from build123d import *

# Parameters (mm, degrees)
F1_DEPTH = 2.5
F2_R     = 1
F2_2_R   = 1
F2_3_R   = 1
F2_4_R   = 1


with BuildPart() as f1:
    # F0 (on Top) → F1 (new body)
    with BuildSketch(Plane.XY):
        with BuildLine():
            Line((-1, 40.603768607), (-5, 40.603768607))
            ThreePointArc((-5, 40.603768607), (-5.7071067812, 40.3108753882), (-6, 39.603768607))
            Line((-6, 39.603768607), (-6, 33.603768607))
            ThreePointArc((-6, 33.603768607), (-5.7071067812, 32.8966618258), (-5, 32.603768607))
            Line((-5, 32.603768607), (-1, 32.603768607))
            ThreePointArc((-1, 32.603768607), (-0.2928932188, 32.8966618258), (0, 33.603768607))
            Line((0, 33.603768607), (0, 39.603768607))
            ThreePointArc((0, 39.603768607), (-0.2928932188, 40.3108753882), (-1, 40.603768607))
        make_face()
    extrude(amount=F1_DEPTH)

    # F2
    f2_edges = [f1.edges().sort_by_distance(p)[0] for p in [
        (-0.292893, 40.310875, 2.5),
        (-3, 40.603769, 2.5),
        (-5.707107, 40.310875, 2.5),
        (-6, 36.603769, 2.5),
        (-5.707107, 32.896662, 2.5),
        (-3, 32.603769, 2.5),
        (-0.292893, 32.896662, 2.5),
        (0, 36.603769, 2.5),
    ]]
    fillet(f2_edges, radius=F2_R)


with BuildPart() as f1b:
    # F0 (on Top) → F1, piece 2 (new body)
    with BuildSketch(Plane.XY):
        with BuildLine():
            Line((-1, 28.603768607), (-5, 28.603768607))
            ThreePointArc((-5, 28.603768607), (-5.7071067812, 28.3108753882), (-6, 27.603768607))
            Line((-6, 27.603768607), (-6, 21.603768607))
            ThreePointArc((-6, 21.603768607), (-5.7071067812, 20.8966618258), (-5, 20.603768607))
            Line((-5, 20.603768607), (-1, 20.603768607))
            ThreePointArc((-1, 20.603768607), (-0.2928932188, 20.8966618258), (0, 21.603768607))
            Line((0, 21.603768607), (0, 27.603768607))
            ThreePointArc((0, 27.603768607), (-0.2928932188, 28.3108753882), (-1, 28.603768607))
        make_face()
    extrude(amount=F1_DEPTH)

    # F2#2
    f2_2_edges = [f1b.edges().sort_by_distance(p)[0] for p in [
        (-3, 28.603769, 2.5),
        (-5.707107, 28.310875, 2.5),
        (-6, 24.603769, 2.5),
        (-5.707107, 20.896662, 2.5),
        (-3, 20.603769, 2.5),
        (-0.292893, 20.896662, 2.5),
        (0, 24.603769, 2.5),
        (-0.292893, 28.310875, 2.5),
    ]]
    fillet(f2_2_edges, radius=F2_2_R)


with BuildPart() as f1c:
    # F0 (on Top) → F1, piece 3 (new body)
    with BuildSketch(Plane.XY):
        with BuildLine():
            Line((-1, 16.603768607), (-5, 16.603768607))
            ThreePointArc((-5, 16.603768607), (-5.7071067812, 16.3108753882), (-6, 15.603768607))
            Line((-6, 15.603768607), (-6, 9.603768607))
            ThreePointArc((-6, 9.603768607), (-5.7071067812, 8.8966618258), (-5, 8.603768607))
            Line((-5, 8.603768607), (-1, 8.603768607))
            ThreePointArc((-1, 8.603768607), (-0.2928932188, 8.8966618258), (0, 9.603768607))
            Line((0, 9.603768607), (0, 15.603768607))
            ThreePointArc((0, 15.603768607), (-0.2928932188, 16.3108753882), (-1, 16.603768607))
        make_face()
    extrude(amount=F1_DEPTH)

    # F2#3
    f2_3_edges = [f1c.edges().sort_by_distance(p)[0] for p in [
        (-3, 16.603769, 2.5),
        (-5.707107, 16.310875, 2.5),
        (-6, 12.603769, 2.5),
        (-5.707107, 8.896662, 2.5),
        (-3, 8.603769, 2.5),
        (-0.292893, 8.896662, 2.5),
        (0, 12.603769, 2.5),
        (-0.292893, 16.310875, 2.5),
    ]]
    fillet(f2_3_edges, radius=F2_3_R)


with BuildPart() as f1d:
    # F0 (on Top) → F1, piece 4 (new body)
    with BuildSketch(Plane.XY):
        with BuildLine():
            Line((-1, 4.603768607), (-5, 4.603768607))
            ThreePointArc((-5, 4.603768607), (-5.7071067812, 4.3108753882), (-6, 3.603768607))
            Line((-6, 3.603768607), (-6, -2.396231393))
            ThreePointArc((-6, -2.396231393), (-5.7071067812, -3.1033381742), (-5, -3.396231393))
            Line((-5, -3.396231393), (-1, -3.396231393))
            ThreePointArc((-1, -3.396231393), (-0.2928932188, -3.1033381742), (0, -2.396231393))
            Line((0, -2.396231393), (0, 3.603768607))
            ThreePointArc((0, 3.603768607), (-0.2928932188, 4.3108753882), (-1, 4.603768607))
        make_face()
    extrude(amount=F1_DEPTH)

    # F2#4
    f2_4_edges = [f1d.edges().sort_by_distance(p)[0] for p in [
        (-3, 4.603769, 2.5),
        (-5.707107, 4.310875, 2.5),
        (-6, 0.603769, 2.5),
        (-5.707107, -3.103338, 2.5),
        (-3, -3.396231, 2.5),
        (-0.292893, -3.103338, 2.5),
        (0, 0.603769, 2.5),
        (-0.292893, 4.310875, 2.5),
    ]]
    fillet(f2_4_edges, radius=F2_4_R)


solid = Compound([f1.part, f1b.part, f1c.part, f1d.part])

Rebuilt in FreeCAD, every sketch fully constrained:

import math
import FreeCAD as App
import Part
import Sketcher
from FreeCAD import Vector
Q = App.Units.Quantity


def edges_at(feature, points):
    """Names of the edges that pass closest to the given points."""
    edges = feature.Shape.Edges
    near = lambda p: min(range(len(edges)), key=lambda i: edges[i].distToShape(Part.Vertex(*p))[0])
    return sorted({f"Edge{near(p) + 1}" for p in points})

doc = App.newDocument("Part")
body = doc.addObject("PartDesign::Body", "Body")

# Sketch on XY plane
sketch1 = doc.addObject("Sketcher::SketchObject", "Sketch")
body.addObject(sketch1)
sketch1.AttachmentSupport = (doc.XY_Plane, [""])
sketch1.MapMode = "FlatFace"
sketch1.addGeometry(Part.LineSegment(Vector(-1, 40.6, 0), Vector(-5, 40.6, 0)), False)
sketch1.addGeometry(Part.ArcOfCircle(Part.Circle(Vector(-5, 39.6, 0), Vector(0, 0, 1), 1), math.radians(90), math.radians(180)), False)
sketch1.addGeometry(Part.LineSegment(Vector(-6, 39.6, 0), Vector(-6, 33.6, 0)), False)
sketch1.addGeometry(Part.ArcOfCircle(Part.Circle(Vector(-5, 33.6, 0), Vector(0, 0, 1), 1), math.radians(180), math.radians(270)), False)
sketch1.addGeometry(Part.LineSegment(Vector(-5, 32.6, 0), Vector(-1, 32.6, 0)), False)
sketch1.addGeometry(Part.ArcOfCircle(Part.Circle(Vector(-1, 33.6, 0), Vector(0, 0, 1), 1), math.radians(-90), math.radians(0)), False)
sketch1.addGeometry(Part.LineSegment(Vector(0, 33.6, 0), Vector(0, 39.6, 0)), False)
sketch1.addGeometry(Part.ArcOfCircle(Part.Circle(Vector(-1, 39.6, 0), Vector(0, 0, 1), 1), math.radians(0), math.radians(90)), False)
sketch1.addConstraint(Sketcher.Constraint("Tangent", 0, 2, 1, 1))
sketch1.addConstraint(Sketcher.Constraint("Tangent", 1, 2, 2, 1))
sketch1.addConstraint(Sketcher.Constraint("Tangent", 2, 2, 3, 1))
sketch1.addConstraint(Sketcher.Constraint("Tangent", 3, 2, 4, 1))
sketch1.addConstraint(Sketcher.Constraint("Tangent", 4, 2, 5, 1))
sketch1.addConstraint(Sketcher.Constraint("Tangent", 5, 2, 6, 1))
sketch1.addConstraint(Sketcher.Constraint("Tangent", 6, 2, 7, 1))
sketch1.addConstraint(Sketcher.Constraint("Tangent", 7, 2, 0, 1))
sketch1.addConstraint(Sketcher.Constraint("Horizontal", 0))
sketch1.addConstraint(Sketcher.Constraint("Vertical", 2))
sketch1.addConstraint(Sketcher.Constraint("Horizontal", 4))
sketch1.addConstraint(Sketcher.Constraint("Vertical", 6))
sketch1.addConstraint(Sketcher.Constraint("Equal", 1, 3))
sketch1.addConstraint(Sketcher.Constraint("Equal", 3, 5))
sketch1.addConstraint(Sketcher.Constraint("Equal", 5, 7))
sketch1.addConstraint(Sketcher.Constraint("PointOnObject", 5, 2, -2))
sketch1.addConstraint(Sketcher.Constraint("Radius", 1, Q("1 mm")))
sketch1.addConstraint(Sketcher.Constraint("DistanceX", 0, 2, 0, 1, Q("4 mm")))
sketch1.addConstraint(Sketcher.Constraint("DistanceY", 2, 2, 2, 1, Q("6 mm")))
sketch1.addConstraint(Sketcher.Constraint("DistanceY", -1, 1, 1, 3, Q("39.603769 mm")))
pad1 = doc.addObject("PartDesign::Pad", "Pad")
body.addObject(pad1)
pad1.Profile = sketch1
pad1.Length = 2.5
doc.recompute()

fillet = doc.addObject("PartDesign::Fillet", "Fillet")
body.addObject(fillet)
fillet.Base = (pad1, edges_at(pad1, [
    (-0.293, 40.311, 2.5),
    (-3, 40.604, 2.5),
    (-5.707, 40.311, 2.5),
    (-6, 36.604, 2.5),
    (-5.707, 32.897, 2.5),
    (-3, 32.604, 2.5),
    (-0.293, 32.897, 2.5),
    (0, 36.604, 2.5),
]))
fillet.Radius = 1
body2 = doc.addObject("PartDesign::Body", "Body001")

# Sketch on XY plane
sketch2 = doc.addObject("Sketcher::SketchObject", "Sketch001")
body2.addObject(sketch2)
sketch2.AttachmentSupport = (doc.getObject("XY_Plane001"), [""])
sketch2.MapMode = "FlatFace"
sketch2.addGeometry(Part.LineSegment(Vector(-1, 28.6, 0), Vector(-5, 28.6, 0)), False)
sketch2.addGeometry(Part.ArcOfCircle(Part.Circle(Vector(-5, 27.6, 0), Vector(0, 0, 1), 1), math.radians(90), math.radians(180)), False)
sketch2.addGeometry(Part.LineSegment(Vector(-6, 27.6, 0), Vector(-6, 21.6, 0)), False)
sketch2.addGeometry(Part.ArcOfCircle(Part.Circle(Vector(-5, 21.6, 0), Vector(0, 0, 1), 1), math.radians(180), math.radians(270)), False)
sketch2.addGeometry(Part.LineSegment(Vector(-5, 20.6, 0), Vector(-1, 20.6, 0)), False)
sketch2.addGeometry(Part.ArcOfCircle(Part.Circle(Vector(-1, 21.6, 0), Vector(0, 0, 1), 1), math.radians(-90), math.radians(0)), False)
sketch2.addGeometry(Part.LineSegment(Vector(0, 21.6, 0), Vector(0, 27.6, 0)), False)
sketch2.addGeometry(Part.ArcOfCircle(Part.Circle(Vector(-1, 27.6, 0), Vector(0, 0, 1), 1), math.radians(0), math.radians(90)), False)
sketch2.addConstraint(Sketcher.Constraint("Tangent", 0, 2, 1, 1))
sketch2.addConstraint(Sketcher.Constraint("Tangent", 1, 2, 2, 1))
sketch2.addConstraint(Sketcher.Constraint("Tangent", 2, 2, 3, 1))
sketch2.addConstraint(Sketcher.Constraint("Tangent", 3, 2, 4, 1))
sketch2.addConstraint(Sketcher.Constraint("Tangent", 4, 2, 5, 1))
sketch2.addConstraint(Sketcher.Constraint("Tangent", 5, 2, 6, 1))
sketch2.addConstraint(Sketcher.Constraint("Tangent", 6, 2, 7, 1))
sketch2.addConstraint(Sketcher.Constraint("Tangent", 7, 2, 0, 1))
sketch2.addConstraint(Sketcher.Constraint("Horizontal", 0))
sketch2.addConstraint(Sketcher.Constraint("Vertical", 2))
sketch2.addConstraint(Sketcher.Constraint("Horizontal", 4))
sketch2.addConstraint(Sketcher.Constraint("Vertical", 6))
sketch2.addConstraint(Sketcher.Constraint("Equal", 1, 3))
sketch2.addConstraint(Sketcher.Constraint("Equal", 3, 5))
sketch2.addConstraint(Sketcher.Constraint("Equal", 5, 7))
sketch2.addConstraint(Sketcher.Constraint("PointOnObject", 5, 2, -2))
sketch2.addConstraint(Sketcher.Constraint("Radius", 1, Q("1 mm")))
sketch2.addConstraint(Sketcher.Constraint("DistanceX", 0, 2, 0, 1, Q("4 mm")))
sketch2.addConstraint(Sketcher.Constraint("DistanceY", 2, 2, 2, 1, Q("6 mm")))
sketch2.addConstraint(Sketcher.Constraint("DistanceY", -1, 1, 1, 3, Q("27.603769 mm")))
pad2 = doc.addObject("PartDesign::Pad", "Pad001")
body2.addObject(pad2)
pad2.Profile = sketch2
pad2.Length = 2.5
doc.recompute()

fillet2 = doc.addObject("PartDesign::Fillet", "Fillet001")
body2.addObject(fillet2)
fillet2.Base = (pad2, edges_at(pad2, [
    (-3, 28.604, 2.5),
    (-5.707, 28.311, 2.5),
    (-6, 24.604, 2.5),
    (-5.707, 20.897, 2.5),
    (-3, 20.604, 2.5),
    (-0.293, 20.897, 2.5),
    (0, 24.604, 2.5),
    (-0.293, 28.311, 2.5),
]))
fillet2.Radius = 1
body3 = doc.addObject("PartDesign::Body", "Body002")

# Sketch on XY plane
sketch3 = doc.addObject("Sketcher::SketchObject", "Sketch002")
body3.addObject(sketch3)
sketch3.AttachmentSupport = (doc.getObject("XY_Plane002"), [""])
sketch3.MapMode = "FlatFace"
sketch3.addGeometry(Part.LineSegment(Vector(-1, 16.6, 0), Vector(-5, 16.6, 0)), False)
sketch3.addGeometry(Part.ArcOfCircle(Part.Circle(Vector(-5, 15.6, 0), Vector(0, 0, 1), 1), math.radians(90), math.radians(180)), False)
sketch3.addGeometry(Part.LineSegment(Vector(-6, 15.6, 0), Vector(-6, 9.6, 0)), False)
sketch3.addGeometry(Part.ArcOfCircle(Part.Circle(Vector(-5, 9.6, 0), Vector(0, 0, 1), 1), math.radians(180), math.radians(270)), False)
sketch3.addGeometry(Part.LineSegment(Vector(-5, 8.6, 0), Vector(-1, 8.6, 0)), False)
sketch3.addGeometry(Part.ArcOfCircle(Part.Circle(Vector(-1, 9.6, 0), Vector(0, 0, 1), 1), math.radians(-90), math.radians(0)), False)
sketch3.addGeometry(Part.LineSegment(Vector(0, 9.6, 0), Vector(0, 15.6, 0)), False)
sketch3.addGeometry(Part.ArcOfCircle(Part.Circle(Vector(-1, 15.6, 0), Vector(0, 0, 1), 1), math.radians(0), math.radians(90)), False)
sketch3.addConstraint(Sketcher.Constraint("Tangent", 0, 2, 1, 1))
sketch3.addConstraint(Sketcher.Constraint("Tangent", 1, 2, 2, 1))
sketch3.addConstraint(Sketcher.Constraint("Tangent", 2, 2, 3, 1))
sketch3.addConstraint(Sketcher.Constraint("Tangent", 3, 2, 4, 1))
sketch3.addConstraint(Sketcher.Constraint("Tangent", 4, 2, 5, 1))
sketch3.addConstraint(Sketcher.Constraint("Tangent", 5, 2, 6, 1))
sketch3.addConstraint(Sketcher.Constraint("Tangent", 6, 2, 7, 1))
sketch3.addConstraint(Sketcher.Constraint("Tangent", 7, 2, 0, 1))
sketch3.addConstraint(Sketcher.Constraint("Horizontal", 0))
sketch3.addConstraint(Sketcher.Constraint("Vertical", 2))
sketch3.addConstraint(Sketcher.Constraint("Horizontal", 4))
sketch3.addConstraint(Sketcher.Constraint("Vertical", 6))
sketch3.addConstraint(Sketcher.Constraint("Equal", 1, 3))
sketch3.addConstraint(Sketcher.Constraint("Equal", 3, 5))
sketch3.addConstraint(Sketcher.Constraint("Equal", 5, 7))
sketch3.addConstraint(Sketcher.Constraint("PointOnObject", 5, 2, -2))
sketch3.addConstraint(Sketcher.Constraint("Radius", 1, Q("1 mm")))
sketch3.addConstraint(Sketcher.Constraint("DistanceX", 0, 2, 0, 1, Q("4 mm")))
sketch3.addConstraint(Sketcher.Constraint("DistanceY", 2, 2, 2, 1, Q("6 mm")))
sketch3.addConstraint(Sketcher.Constraint("DistanceY", -1, 1, 1, 3, Q("15.603769 mm")))
pad3 = doc.addObject("PartDesign::Pad", "Pad002")
body3.addObject(pad3)
pad3.Profile = sketch3
pad3.Length = 2.5
doc.recompute()

fillet3 = doc.addObject("PartDesign::Fillet", "Fillet002")
body3.addObject(fillet3)
fillet3.Base = (pad3, edges_at(pad3, [
    (-3, 16.604, 2.5),
    (-5.707, 16.311, 2.5),
    (-6, 12.604, 2.5),
    (-5.707, 8.897, 2.5),
    (-3, 8.604, 2.5),
    (-0.293, 8.897, 2.5),
    (0, 12.604, 2.5),
    (-0.293, 16.311, 2.5),
]))
fillet3.Radius = 1
body4 = doc.addObject("PartDesign::Body", "Body003")

# Sketch on XY plane
sketch4 = doc.addObject("Sketcher::SketchObject", "Sketch003")
body4.addObject(sketch4)
sketch4.AttachmentSupport = (doc.getObject("XY_Plane003"), [""])
sketch4.MapMode = "FlatFace"
sketch4.addGeometry(Part.LineSegment(Vector(-1, 4.6, 0), Vector(-5, 4.6, 0)), False)
sketch4.addGeometry(Part.ArcOfCircle(Part.Circle(Vector(-5, 3.6, 0), Vector(0, 0, 1), 1), math.radians(90), math.radians(180)), False)
sketch4.addGeometry(Part.LineSegment(Vector(-6, 3.6, 0), Vector(-6, -2.4, 0)), False)
sketch4.addGeometry(Part.ArcOfCircle(Part.Circle(Vector(-5, -2.4, 0), Vector(0, 0, 1), 1), math.radians(180), math.radians(270)), False)
sketch4.addGeometry(Part.LineSegment(Vector(-5, -3.4, 0), Vector(-1, -3.4, 0)), False)
sketch4.addGeometry(Part.ArcOfCircle(Part.Circle(Vector(-1, -2.4, 0), Vector(0, 0, 1), 1), math.radians(-90), math.radians(0)), False)
sketch4.addGeometry(Part.LineSegment(Vector(0, -2.4, 0), Vector(0, 3.6, 0)), False)
sketch4.addGeometry(Part.ArcOfCircle(Part.Circle(Vector(-1, 3.6, 0), Vector(0, 0, 1), 1), math.radians(0), math.radians(90)), False)
sketch4.addConstraint(Sketcher.Constraint("Tangent", 0, 2, 1, 1))
sketch4.addConstraint(Sketcher.Constraint("Tangent", 1, 2, 2, 1))
sketch4.addConstraint(Sketcher.Constraint("Tangent", 2, 2, 3, 1))
sketch4.addConstraint(Sketcher.Constraint("Tangent", 3, 2, 4, 1))
sketch4.addConstraint(Sketcher.Constraint("Tangent", 4, 2, 5, 1))
sketch4.addConstraint(Sketcher.Constraint("Tangent", 5, 2, 6, 1))
sketch4.addConstraint(Sketcher.Constraint("Tangent", 6, 2, 7, 1))
sketch4.addConstraint(Sketcher.Constraint("Tangent", 7, 2, 0, 1))
sketch4.addConstraint(Sketcher.Constraint("Horizontal", 0))
sketch4.addConstraint(Sketcher.Constraint("Vertical", 2))
sketch4.addConstraint(Sketcher.Constraint("Horizontal", 4))
sketch4.addConstraint(Sketcher.Constraint("Vertical", 6))
sketch4.addConstraint(Sketcher.Constraint("Equal", 1, 3))
sketch4.addConstraint(Sketcher.Constraint("Equal", 3, 5))
sketch4.addConstraint(Sketcher.Constraint("Equal", 5, 7))
sketch4.addConstraint(Sketcher.Constraint("PointOnObject", 5, 2, -2))
sketch4.addConstraint(Sketcher.Constraint("Radius", 1, Q("1 mm")))
sketch4.addConstraint(Sketcher.Constraint("DistanceX", 0, 2, 0, 1, Q("4 mm")))
sketch4.addConstraint(Sketcher.Constraint("DistanceY", 2, 2, 2, 1, Q("6 mm")))
sketch4.addConstraint(Sketcher.Constraint("DistanceY", -1, 1, 1, 3, Q("3.603769 mm")))
pad4 = doc.addObject("PartDesign::Pad", "Pad003")
body4.addObject(pad4)
pad4.Profile = sketch4
pad4.Length = 2.5
doc.recompute()

fillet4 = doc.addObject("PartDesign::Fillet", "Fillet003")
body4.addObject(fillet4)
fillet4.Base = (pad4, edges_at(pad4, [
    (-3, 4.604, 2.5),
    (-5.707, 4.311, 2.5),
    (-6, 0.604, 2.5),
    (-5.707, -3.103, 2.5),
    (-3, -3.396, 2.5),
    (-0.293, -3.103, 2.5),
    (0, 0.604, 2.5),
    (-0.293, 4.311, 2.5),
]))
fillet4.Radius = 1

doc.recompute()
